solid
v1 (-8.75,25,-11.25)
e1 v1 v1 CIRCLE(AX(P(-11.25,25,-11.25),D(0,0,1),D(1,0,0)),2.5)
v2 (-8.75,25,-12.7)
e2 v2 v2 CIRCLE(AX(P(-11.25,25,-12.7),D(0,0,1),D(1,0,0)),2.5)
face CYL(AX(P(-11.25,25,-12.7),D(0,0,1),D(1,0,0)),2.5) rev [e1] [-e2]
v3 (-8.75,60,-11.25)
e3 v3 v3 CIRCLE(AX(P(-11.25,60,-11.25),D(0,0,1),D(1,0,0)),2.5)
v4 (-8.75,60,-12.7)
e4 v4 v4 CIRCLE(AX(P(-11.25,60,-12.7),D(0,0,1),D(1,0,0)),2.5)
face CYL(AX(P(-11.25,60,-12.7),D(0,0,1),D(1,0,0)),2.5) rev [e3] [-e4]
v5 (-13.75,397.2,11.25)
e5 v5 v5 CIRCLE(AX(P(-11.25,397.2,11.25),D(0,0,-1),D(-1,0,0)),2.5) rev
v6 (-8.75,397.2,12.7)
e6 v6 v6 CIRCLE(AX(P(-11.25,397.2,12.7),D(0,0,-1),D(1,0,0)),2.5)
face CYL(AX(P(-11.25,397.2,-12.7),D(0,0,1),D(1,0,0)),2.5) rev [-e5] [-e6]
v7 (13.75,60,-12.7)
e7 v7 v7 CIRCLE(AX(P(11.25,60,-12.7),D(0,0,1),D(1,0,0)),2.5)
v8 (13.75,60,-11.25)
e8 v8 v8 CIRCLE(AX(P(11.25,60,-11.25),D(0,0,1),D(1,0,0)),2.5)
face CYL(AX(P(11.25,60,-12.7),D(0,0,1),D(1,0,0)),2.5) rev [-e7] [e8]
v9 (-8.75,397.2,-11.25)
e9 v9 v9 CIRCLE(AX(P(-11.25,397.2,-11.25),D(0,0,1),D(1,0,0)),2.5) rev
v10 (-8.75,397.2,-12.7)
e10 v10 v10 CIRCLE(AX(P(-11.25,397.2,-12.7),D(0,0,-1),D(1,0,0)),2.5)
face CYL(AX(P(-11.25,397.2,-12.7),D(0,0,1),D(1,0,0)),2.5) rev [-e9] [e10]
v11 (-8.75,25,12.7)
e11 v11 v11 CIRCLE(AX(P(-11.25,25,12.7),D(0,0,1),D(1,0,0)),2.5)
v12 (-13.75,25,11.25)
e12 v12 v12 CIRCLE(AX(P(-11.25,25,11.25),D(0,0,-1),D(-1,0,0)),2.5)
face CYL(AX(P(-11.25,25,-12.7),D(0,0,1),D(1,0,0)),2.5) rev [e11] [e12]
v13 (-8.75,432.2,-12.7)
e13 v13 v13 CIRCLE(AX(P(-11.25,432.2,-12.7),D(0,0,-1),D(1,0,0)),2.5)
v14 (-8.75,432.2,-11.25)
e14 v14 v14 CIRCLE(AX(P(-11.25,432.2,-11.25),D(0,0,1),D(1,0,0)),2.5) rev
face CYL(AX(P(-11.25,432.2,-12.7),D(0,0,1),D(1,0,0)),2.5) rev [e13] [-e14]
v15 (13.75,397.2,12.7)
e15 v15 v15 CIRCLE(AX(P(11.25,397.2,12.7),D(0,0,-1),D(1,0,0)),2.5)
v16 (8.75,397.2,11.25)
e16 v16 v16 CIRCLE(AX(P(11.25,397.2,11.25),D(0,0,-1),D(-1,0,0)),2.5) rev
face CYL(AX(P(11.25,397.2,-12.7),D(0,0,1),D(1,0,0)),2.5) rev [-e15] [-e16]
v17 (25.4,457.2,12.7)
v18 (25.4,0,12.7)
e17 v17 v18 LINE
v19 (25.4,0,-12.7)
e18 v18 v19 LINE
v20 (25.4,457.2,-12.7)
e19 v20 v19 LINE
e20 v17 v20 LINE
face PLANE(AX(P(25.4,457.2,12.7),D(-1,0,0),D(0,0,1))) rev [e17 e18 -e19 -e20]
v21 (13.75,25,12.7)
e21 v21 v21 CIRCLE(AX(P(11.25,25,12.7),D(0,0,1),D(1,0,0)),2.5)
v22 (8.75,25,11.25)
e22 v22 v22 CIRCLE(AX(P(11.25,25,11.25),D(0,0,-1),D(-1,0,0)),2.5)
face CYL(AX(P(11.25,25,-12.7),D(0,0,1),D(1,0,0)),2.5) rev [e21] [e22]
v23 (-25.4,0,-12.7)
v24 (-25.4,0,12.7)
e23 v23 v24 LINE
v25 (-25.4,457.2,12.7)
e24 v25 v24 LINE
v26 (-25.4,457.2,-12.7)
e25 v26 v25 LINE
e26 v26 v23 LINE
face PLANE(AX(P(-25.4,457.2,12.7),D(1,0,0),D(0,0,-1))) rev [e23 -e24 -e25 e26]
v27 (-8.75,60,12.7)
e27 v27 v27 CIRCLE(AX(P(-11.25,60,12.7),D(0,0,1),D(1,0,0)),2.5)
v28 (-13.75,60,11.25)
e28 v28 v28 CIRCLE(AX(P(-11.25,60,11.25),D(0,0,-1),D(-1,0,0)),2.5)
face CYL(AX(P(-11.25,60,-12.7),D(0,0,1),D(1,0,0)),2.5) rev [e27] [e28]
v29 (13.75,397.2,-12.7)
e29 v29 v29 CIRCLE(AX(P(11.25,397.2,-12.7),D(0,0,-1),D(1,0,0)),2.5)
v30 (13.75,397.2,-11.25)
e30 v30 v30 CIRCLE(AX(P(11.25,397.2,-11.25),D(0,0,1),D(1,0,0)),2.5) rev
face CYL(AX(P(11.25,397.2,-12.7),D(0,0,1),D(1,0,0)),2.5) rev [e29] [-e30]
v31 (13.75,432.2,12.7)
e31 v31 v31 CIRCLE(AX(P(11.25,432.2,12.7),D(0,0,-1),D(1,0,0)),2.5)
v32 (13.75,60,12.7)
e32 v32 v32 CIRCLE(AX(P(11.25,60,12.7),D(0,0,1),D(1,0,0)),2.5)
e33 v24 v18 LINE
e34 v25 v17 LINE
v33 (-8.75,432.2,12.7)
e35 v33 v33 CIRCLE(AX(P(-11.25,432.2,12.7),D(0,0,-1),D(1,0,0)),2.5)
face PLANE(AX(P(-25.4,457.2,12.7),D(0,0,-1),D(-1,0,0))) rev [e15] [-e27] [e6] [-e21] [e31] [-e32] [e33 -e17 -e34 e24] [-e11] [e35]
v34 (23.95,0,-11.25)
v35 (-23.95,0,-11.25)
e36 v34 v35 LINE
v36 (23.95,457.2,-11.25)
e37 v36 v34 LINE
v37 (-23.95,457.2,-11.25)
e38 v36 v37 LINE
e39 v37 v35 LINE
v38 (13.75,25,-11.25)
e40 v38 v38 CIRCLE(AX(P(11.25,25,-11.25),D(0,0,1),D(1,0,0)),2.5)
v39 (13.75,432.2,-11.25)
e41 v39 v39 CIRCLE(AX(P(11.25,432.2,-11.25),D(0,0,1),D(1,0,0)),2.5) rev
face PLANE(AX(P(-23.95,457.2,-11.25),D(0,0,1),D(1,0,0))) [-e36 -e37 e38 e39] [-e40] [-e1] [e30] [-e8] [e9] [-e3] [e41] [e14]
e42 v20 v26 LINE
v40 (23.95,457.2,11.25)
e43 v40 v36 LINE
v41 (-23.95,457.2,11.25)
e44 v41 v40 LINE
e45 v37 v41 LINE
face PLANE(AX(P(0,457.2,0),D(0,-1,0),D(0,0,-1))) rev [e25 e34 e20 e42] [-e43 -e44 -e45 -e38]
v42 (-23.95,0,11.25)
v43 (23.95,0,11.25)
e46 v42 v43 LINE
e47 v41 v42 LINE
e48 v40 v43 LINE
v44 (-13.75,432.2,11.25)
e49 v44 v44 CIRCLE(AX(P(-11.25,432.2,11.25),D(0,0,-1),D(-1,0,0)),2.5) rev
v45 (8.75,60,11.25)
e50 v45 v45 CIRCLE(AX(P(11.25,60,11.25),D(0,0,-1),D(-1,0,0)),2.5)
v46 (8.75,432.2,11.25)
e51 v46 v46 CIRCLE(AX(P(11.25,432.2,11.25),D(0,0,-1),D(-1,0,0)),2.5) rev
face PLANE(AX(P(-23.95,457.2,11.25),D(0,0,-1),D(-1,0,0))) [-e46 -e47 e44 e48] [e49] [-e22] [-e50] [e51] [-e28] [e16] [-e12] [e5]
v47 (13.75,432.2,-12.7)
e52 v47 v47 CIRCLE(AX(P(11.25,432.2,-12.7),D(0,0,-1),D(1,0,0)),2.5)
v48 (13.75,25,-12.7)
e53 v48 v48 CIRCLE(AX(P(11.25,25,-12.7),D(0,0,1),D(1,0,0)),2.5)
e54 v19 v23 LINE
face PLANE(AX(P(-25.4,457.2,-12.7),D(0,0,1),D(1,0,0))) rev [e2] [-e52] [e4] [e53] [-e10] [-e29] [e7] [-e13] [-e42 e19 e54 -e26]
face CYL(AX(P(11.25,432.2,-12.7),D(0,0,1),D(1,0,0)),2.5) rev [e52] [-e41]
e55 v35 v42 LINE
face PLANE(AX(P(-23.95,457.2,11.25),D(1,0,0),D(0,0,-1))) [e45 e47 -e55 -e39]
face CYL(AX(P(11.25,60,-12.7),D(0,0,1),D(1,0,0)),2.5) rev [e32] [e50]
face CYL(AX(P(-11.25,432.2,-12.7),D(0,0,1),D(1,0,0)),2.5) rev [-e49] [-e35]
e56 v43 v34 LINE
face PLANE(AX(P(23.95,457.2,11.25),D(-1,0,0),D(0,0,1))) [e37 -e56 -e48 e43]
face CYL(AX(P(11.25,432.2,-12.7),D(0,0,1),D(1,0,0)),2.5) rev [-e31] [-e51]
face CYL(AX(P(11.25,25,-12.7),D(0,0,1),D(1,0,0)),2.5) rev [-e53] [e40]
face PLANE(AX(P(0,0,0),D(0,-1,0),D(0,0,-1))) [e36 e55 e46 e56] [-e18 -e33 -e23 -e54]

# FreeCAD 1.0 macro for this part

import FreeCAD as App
import Part
import Sketcher
Q = App.Units.Quantity


def add_polygon(sketch, points):
    """Adds a closed chain of lines whose ends are joined by coincident constraints."""
    first, n = sketch.GeometryCount, len(points)
    for a, b in zip(points, points[1:] + points[:1]):
        sketch.addGeometry(Part.LineSegment(App.Vector(*a, 0), App.Vector(*b, 0)), False)
    for i in range(n):
        sketch.addConstraint(Sketcher.Constraint("Coincident", first + i, 2, first + (i + 1) % n, 1))

doc = App.newDocument("Part")
body = doc.addObject("PartDesign::Body", "Body")

sketch1 = body.newObject("Sketcher::SketchObject", "Sketch")
sketch1.AttachmentSupport = (doc.getObject("XZ_Plane"), [""])
sketch1.MapMode = "FlatFace"
add_polygon(sketch1, [(-25.4, -12.7), (-25.4, 12.7), (25.4, 12.7), (25.4, -12.7)])
add_polygon(sketch1, [(23.95, 11.25), (-23.95, 11.25), (-23.95, -11.25), (23.95, -11.25)])
sketch1.addConstraint([
    Sketcher.Constraint("Vertical", 0),
    Sketcher.Constraint("Horizontal", 1),
    Sketcher.Constraint("Vertical", 2),
    Sketcher.Constraint("Horizontal", 3),
    Sketcher.Constraint("Horizontal", 4),
    Sketcher.Constraint("Vertical", 5),
    Sketcher.Constraint("Horizontal", 6),
    Sketcher.Constraint("Vertical", 7),
    Sketcher.Constraint("Symmetric", 0, 2, 2, 2, -1, 1),
    Sketcher.Constraint("Symmetric", 4, 2, 6, 2, -1, 1),
    Sketcher.Constraint("DistanceX", 1, 1, 1, 2, Q("50.8 mm")),
    Sketcher.Constraint("DistanceX", 4, 2, 4, 1, Q("47.9 mm")),
    Sketcher.Constraint("DistanceY", 0, 1, 0, 2, Q("25.4 mm")),
    Sketcher.Constraint("DistanceY", 5, 2, 5, 1, Q("22.5 mm")),
])
pad1 = body.newObject("PartDesign::Pad", "Pad")
pad1.Profile = sketch1
pad1.Length = 457.2
pad1.Reversed = True

sketch2 = body.newObject("Sketcher::SketchObject", "Sketch001")
sketch2.AttachmentSupport = (doc.getObject("XY_Plane"), [""])
sketch2.MapMode = "FlatFace"
sketch2.AttachmentOffset = App.Placement(App.Vector(0, 0, 12.7), App.Rotation())
sketch2.addGeometry([
    Part.Circle(App.Vector(-11.25, 60, 0), App.Vector(0, 0, 1), 2.5),
    Part.Circle(App.Vector(-11.25, 25, 0), App.Vector(0, 0, 1), 2.5),
    Part.Circle(App.Vector(11.25, 25, 0), App.Vector(0, 0, 1), 2.5),
    Part.Circle(App.Vector(11.25, 60, 0), App.Vector(0, 0, 1), 2.5),
], False)
sketch2.addConstraint([
    Sketcher.Constraint("Equal", 0, 1),
    Sketcher.Constraint("Equal", 1, 2),
    Sketcher.Constraint("Equal", 2, 3),
    Sketcher.Constraint("Symmetric", 1, 3, 2, 3, -2),
    Sketcher.Constraint("Symmetric", 0, 3, 3, 3, -2),
    Sketcher.Constraint("Vertical", 0, 3, 1, 3),
    Sketcher.Constraint("Diameter", 0, Q("5 mm")),
    Sketcher.Constraint("DistanceY", -1, 1, 0, 3, Q("60 mm")),
    Sketcher.Constraint("DistanceY", -1, 1, 1, 3, Q("25 mm")),
    Sketcher.Constraint("DistanceX", 1, 3, 2, 3, Q("22.5 mm")),
])
pocket1 = body.newObject("PartDesign::Pocket", "Pocket")
pocket1.Profile = sketch2
pocket1.Type = "ThroughAll"
doc.recompute()

datumplane = body.newObject("PartDesign::Plane", "DatumPlane")
datumplane.AttachmentSupport = (doc.getObject("XZ_Plane"), [""])
datumplane.MapMode = "FlatFace"
datumplane.AttachmentOffset = App.Placement(App.Vector(0, 0, -228.6), App.Rotation())
mirrored = body.newObject("PartDesign::Mirrored", "Mirrored")
mirrored.Originals = [pocket1]
mirrored.MirrorPlane = (datumplane, [""])
body.Tip = mirrored

doc.recompute()
